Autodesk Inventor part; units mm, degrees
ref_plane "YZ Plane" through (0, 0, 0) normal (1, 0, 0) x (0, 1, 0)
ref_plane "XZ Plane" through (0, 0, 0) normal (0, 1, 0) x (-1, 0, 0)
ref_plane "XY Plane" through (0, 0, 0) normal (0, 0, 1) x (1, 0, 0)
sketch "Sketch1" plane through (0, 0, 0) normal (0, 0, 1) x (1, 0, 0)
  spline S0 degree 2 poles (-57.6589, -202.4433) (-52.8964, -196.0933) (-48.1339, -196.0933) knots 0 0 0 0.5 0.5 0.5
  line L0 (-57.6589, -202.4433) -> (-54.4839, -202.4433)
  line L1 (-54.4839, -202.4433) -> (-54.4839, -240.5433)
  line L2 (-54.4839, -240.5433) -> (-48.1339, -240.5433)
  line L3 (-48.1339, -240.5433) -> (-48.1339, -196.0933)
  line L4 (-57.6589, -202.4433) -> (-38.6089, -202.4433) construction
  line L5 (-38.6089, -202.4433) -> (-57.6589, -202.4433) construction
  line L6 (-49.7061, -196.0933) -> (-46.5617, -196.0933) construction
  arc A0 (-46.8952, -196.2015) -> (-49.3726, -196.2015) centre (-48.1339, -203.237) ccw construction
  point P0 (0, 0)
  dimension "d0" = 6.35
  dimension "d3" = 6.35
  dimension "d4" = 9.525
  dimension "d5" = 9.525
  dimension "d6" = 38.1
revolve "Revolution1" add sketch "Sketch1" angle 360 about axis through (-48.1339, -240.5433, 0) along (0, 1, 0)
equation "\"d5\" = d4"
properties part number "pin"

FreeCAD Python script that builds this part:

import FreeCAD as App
import Part
import Sketcher

V = App.Vector
Q = App.Units.Quantity

doc = App.newDocument("Part")
body = doc.addObject("PartDesign::Body", "Body")

sketch1 = body.newObject("Sketcher::SketchObject", "Sketch")
sketch1.AttachmentSupport = (doc.getObject("XY_Plane"), [""])
sketch1.MapMode = "FlatFace"
sketch1.addGeometry(Part.BSplineCurve([V(-57.6589, -202.4433, 0), V(-52.8964, -196.0933, 0), V(-48.1339, -196.0933, 0)], [3, 3], [0, 0.5], False, 2, [1, 1, 1], False), False)
sketch1.addGeometry(Part.LineSegment(V(-57.6589, -202.4433, 0), V(-54.4839, -202.4433, 0)), False)
sketch1.addGeometry(Part.LineSegment(V(-54.4839, -202.4433, 0), V(-54.4839, -240.5433, 0)), False)
sketch1.addGeometry(Part.LineSegment(V(-54.4839, -240.5433, 0), V(-48.1339, -240.5433, 0)), False)
sketch1.addGeometry(Part.LineSegment(V(-48.1339, -240.5433, 0), V(-48.1339, -196.0933, 0)), False)
sketch1.addGeometry(Part.LineSegment(V(-48.1339, -240.5433, 0), V(-48.1339, -196.0933, 0)), True)
sketch1.addConstraint(Sketcher.Constraint("Block", 0))
sketch1.addConstraint(Sketcher.Constraint("Coincident", 0, 1, 1, 1))
sketch1.addConstraint(Sketcher.Constraint("Coincident", 1, 2, 2, 1))
sketch1.addConstraint(Sketcher.Constraint("Coincident", 2, 2, 3, 1))
sketch1.addConstraint(Sketcher.Constraint("Coincident", 3, 2, 4, 1))
sketch1.addConstraint(Sketcher.Constraint("Coincident", 4, 2, 0, 2))
sketch1.addConstraint(Sketcher.Constraint("Horizontal", 1))
sketch1.addConstraint(Sketcher.Constraint("Vertical", 2))
sketch1.addConstraint(Sketcher.Constraint("Horizontal", 3))
sketch1.addConstraint(Sketcher.Constraint("Vertical", 4))
sketch1.addConstraint(Sketcher.Constraint("Vertical", 5))
sketch1.addConstraint(Sketcher.Constraint("Coincident", 5, 1, 3, 2))
sketch1.addConstraint(Sketcher.Constraint("Equal", 4, 5))
sketch1.addConstraint(Sketcher.Constraint("DistanceY", 2, 2, 2, 1, Q("1.5 in")))
sketch1.addConstraint(Sketcher.Constraint("DistanceX", 3, 1, 3, 2, Q("0.25 in")))
revolution = body.newObject("PartDesign::Revolution", "Revolution")
revolution.Profile = sketch1
revolution.ReferenceAxis = (sketch1, ["Axis0"])
revolution.Angle = 360

doc.recompute()
